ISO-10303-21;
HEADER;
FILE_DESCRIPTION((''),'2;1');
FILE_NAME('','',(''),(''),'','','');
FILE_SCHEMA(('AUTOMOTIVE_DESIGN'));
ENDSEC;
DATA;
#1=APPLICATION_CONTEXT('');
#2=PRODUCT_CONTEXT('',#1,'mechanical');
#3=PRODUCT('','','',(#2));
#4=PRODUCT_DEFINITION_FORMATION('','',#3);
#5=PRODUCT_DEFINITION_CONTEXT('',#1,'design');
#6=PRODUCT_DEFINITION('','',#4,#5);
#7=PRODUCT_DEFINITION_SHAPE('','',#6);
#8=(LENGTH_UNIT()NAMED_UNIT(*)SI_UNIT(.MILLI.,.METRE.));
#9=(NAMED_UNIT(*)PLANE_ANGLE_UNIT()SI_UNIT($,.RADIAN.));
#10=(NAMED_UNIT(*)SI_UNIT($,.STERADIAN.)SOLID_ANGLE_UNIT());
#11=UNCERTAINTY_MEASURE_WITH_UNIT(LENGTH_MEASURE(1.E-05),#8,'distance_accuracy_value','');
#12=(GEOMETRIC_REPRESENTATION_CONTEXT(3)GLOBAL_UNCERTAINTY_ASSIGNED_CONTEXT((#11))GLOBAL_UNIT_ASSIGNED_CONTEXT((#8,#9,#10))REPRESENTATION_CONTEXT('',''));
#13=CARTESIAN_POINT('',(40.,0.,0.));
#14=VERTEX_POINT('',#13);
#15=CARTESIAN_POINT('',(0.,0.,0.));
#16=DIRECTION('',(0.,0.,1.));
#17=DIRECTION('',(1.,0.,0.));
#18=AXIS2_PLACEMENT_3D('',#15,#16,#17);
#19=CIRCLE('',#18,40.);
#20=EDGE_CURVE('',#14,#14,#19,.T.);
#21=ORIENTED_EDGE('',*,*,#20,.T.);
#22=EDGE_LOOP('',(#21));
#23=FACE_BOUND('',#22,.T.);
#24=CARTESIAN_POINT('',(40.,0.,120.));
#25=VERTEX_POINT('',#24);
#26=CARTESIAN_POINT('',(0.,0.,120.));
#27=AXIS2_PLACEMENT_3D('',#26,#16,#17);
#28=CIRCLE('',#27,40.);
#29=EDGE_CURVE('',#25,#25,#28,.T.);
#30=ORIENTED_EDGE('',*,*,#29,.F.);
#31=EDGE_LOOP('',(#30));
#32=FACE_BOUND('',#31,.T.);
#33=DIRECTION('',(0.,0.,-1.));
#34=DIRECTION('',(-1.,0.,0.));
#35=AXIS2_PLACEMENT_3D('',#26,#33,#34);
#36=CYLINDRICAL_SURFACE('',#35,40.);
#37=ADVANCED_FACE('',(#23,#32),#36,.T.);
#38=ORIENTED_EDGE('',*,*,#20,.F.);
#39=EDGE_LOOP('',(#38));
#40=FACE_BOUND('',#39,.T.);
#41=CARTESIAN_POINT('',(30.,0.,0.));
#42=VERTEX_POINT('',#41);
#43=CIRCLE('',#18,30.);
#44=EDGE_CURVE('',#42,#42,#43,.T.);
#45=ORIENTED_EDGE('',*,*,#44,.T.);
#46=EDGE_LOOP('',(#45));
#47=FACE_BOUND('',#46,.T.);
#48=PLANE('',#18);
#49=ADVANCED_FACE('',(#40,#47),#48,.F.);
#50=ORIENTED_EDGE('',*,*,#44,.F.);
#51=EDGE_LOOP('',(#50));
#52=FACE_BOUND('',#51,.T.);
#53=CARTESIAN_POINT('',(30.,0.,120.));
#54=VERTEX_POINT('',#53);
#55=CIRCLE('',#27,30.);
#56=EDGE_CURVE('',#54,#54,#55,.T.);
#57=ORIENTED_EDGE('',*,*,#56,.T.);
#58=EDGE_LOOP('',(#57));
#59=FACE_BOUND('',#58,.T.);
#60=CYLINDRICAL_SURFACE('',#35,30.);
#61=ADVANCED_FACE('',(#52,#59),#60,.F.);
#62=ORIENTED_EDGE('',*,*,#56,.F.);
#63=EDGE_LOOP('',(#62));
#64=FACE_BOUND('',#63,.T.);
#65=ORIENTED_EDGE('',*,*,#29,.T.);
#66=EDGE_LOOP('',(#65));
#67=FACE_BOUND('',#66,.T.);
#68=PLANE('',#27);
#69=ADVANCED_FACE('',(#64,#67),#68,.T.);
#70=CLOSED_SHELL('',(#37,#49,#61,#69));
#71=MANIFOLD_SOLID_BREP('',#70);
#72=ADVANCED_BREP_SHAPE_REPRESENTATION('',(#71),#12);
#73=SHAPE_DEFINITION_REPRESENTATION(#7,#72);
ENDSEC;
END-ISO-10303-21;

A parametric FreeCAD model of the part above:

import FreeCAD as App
import Part
import Sketcher
Q = App.Units.Quantity

doc = App.newDocument("Part")
body = doc.addObject("PartDesign::Body", "Body")

# Sketch on XY plane
sketch1 = body.newObject("Sketcher::SketchObject", "Sketch")
sketch1.AttachmentSupport = (doc.getObject("XY_Plane"), [""])
sketch1.MapMode = "FlatFace"
sketch1.addGeometry([
    Part.Circle(App.Vector(0, 0, 0), App.Vector(0, 0, 1), 40),
    Part.Circle(App.Vector(0, 0, 0), App.Vector(0, 0, 1), 30),
], False)
sketch1.addConstraint([
    Sketcher.Constraint("Coincident", 0, 3, -1, 1),
    Sketcher.Constraint("Coincident", 1, 3, -1, 1),
    Sketcher.Constraint("Diameter", 0, Q("80 mm")),
    Sketcher.Constraint("Diameter", 1, Q("60 mm")),
])
pad1 = body.newObject("PartDesign::Pad", "Pad")
pad1.Profile = sketch1
pad1.Length = 120

doc.recompute()
